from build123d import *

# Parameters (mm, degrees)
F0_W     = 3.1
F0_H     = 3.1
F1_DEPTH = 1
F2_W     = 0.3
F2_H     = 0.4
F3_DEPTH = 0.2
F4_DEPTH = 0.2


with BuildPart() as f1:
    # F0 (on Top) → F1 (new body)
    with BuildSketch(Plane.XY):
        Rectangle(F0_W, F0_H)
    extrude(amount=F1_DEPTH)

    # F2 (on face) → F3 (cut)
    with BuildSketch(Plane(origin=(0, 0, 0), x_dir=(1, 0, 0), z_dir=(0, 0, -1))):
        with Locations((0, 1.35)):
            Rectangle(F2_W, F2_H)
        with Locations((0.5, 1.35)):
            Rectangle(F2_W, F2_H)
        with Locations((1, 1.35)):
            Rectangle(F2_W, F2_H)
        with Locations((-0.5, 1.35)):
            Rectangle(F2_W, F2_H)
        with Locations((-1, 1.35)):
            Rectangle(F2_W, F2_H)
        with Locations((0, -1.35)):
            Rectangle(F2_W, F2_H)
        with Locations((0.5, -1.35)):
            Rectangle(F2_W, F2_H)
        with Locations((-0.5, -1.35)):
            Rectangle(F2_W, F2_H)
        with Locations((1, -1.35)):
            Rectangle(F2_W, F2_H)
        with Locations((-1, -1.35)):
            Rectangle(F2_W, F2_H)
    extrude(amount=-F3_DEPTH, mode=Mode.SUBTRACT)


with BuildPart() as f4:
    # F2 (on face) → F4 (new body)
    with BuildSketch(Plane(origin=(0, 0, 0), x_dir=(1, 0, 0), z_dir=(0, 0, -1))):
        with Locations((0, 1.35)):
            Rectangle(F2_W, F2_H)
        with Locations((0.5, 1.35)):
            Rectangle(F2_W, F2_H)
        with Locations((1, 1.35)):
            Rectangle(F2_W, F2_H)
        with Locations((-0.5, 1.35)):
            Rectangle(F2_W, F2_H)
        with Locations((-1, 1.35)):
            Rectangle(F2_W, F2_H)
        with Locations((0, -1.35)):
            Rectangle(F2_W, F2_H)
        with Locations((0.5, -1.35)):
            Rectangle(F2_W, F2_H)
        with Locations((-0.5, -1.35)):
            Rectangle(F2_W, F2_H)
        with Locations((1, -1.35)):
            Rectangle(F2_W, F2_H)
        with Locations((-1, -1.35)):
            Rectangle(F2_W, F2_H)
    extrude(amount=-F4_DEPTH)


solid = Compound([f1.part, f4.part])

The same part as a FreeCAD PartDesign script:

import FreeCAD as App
import Part
import Sketcher
from FreeCAD import Vector

doc = App.newDocument("Part")
body = doc.addObject("PartDesign::Body", "Body")

# Sketch on XY plane
sketch1 = doc.addObject("Sketcher::SketchObject", "Sketch")
body.addObject(sketch1)
sketch1.AttachmentSupport = (doc.XY_Plane, [""])
sketch1.MapMode = "FlatFace"
sketch1.addGeometry([
    Part.LineSegment(Vector(-1.55, 1.55, 0), Vector(-1.55, -1.55, 0)),
    Part.LineSegment(Vector(-1.55, -1.55, 0), Vector(1.55, -1.55, 0)),
    Part.LineSegment(Vector(1.55, -1.55, 0), Vector(1.55, 1.55, 0)),
    Part.LineSegment(Vector(1.55, 1.55, 0), Vector(-1.55, 1.55, 0)),
], False)
sketch1.addConstraint([
    Sketcher.Constraint("Coincident", 0, 2, 1, 1),
    Sketcher.Constraint("Coincident", 1, 2, 2, 1),
    Sketcher.Constraint("Coincident", 2, 2, 3, 1),
    Sketcher.Constraint("Coincident", 3, 2, 0, 1),
    Sketcher.Constraint("Vertical", 0),
    Sketcher.Constraint("Horizontal", 1),
    Sketcher.Constraint("Vertical", 2),
    Sketcher.Constraint("Horizontal", 3),
    Sketcher.Constraint("Symmetric", 0, 2, 2, 2, -1, 1),
    Sketcher.Constraint("Equal", 3, 0),
    Sketcher.Constraint("DistanceX", 1, 1, 1, 2, 3.1),
])
pad1 = doc.addObject("PartDesign::Pad", "Pad")
body.addObject(pad1)
pad1.Profile = sketch1
pad1.Length = 1

# Sketch on XY plane
sketch2 = doc.addObject("Sketcher::SketchObject", "Sketch001")
body.addObject(sketch2)
sketch2.AttachmentSupport = (doc.XY_Plane, [""])
sketch2.MapMode = "FlatFace"
sketch2.addGeometry([
    Part.LineSegment(Vector(-0.15, -1.55, 0), Vector(-0.15, -1.15, 0)),  # 0
    Part.LineSegment(Vector(-0.15, -1.15, 0), Vector(0.15, -1.15, 0)),  # 1
    Part.LineSegment(Vector(0.15, -1.15, 0), Vector(0.15, -1.55, 0)),  # 2
    Part.LineSegment(Vector(0.15, -1.55, 0), Vector(-0.15, -1.55, 0)),  # 3
    Part.LineSegment(Vector(0.35, -1.55, 0), Vector(0.35, -1.15, 0)),  # 4
    Part.LineSegment(Vector(0.35, -1.15, 0), Vector(0.65, -1.15, 0)),  # 5
    Part.LineSegment(Vector(0.65, -1.15, 0), Vector(0.65, -1.55, 0)),  # 6
    Part.LineSegment(Vector(0.65, -1.55, 0), Vector(0.35, -1.55, 0)),  # 7
    Part.LineSegment(Vector(0.85, -1.55, 0), Vector(0.85, -1.15, 0)),  # 8
    Part.LineSegment(Vector(0.85, -1.15, 0), Vector(1.15, -1.15, 0)),  # 9
    Part.LineSegment(Vector(1.15, -1.15, 0), Vector(1.15, -1.55, 0)),  # 10
    Part.LineSegment(Vector(1.15, -1.55, 0), Vector(0.85, -1.55, 0)),  # 11
    Part.LineSegment(Vector(-0.65, -1.55, 0), Vector(-0.65, -1.15, 0)),  # 12
    Part.LineSegment(Vector(-0.65, -1.15, 0), Vector(-0.35, -1.15, 0)),  # 13
    Part.LineSegment(Vector(-0.35, -1.15, 0), Vector(-0.35, -1.55, 0)),  # 14
    Part.LineSegment(Vector(-0.35, -1.55, 0), Vector(-0.65, -1.55, 0)),  # 15
    Part.LineSegment(Vector(-1.15, -1.55, 0), Vector(-1.15, -1.15, 0)),  # 16
    Part.LineSegment(Vector(-1.15, -1.15, 0), Vector(-0.85, -1.15, 0)),  # 17
    Part.LineSegment(Vector(-0.85, -1.15, 0), Vector(-0.85, -1.55, 0)),  # 18
    Part.LineSegment(Vector(-0.85, -1.55, 0), Vector(-1.15, -1.55, 0)),  # 19
    Part.LineSegment(Vector(-0.15, 1.15, 0), Vector(-0.15, 1.55, 0)),  # 20
    Part.LineSegment(Vector(-0.15, 1.55, 0), Vector(0.15, 1.55, 0)),  # 21
    Part.LineSegment(Vector(0.15, 1.55, 0), Vector(0.15, 1.15, 0)),  # 22
    Part.LineSegment(Vector(0.15, 1.15, 0), Vector(-0.15, 1.15, 0)),  # 23
    Part.LineSegment(Vector(0.35, 1.15, 0), Vector(0.35, 1.55, 0)),  # 24
    Part.LineSegment(Vector(0.35, 1.55, 0), Vector(0.65, 1.55, 0)),  # 25
    Part.LineSegment(Vector(0.65, 1.55, 0), Vector(0.65, 1.15, 0)),  # 26
    Part.LineSegment(Vector(0.65, 1.15, 0), Vector(0.35, 1.15, 0)),  # 27
    Part.LineSegment(Vector(-0.65, 1.15, 0), Vector(-0.65, 1.55, 0)),  # 28
    Part.LineSegment(Vector(-0.65, 1.55, 0), Vector(-0.35, 1.55, 0)),  # 29
    Part.LineSegment(Vector(-0.35, 1.55, 0), Vector(-0.35, 1.15, 0)),  # 30
    Part.LineSegment(Vector(-0.35, 1.15, 0), Vector(-0.65, 1.15, 0)),  # 31
    Part.LineSegment(Vector(0.85, 1.15, 0), Vector(0.85, 1.55, 0)),  # 32
    Part.LineSegment(Vector(0.85, 1.55, 0), Vector(1.15, 1.55, 0)),  # 33
    Part.LineSegment(Vector(1.15, 1.55, 0), Vector(1.15, 1.15, 0)),  # 34
    Part.LineSegment(Vector(1.15, 1.15, 0), Vector(0.85, 1.15, 0)),  # 35
    Part.LineSegment(Vector(-1.15, 1.15, 0), Vector(-1.15, 1.55, 0)),  # 36
    Part.LineSegment(Vector(-1.15, 1.55, 0), Vector(-0.85, 1.55, 0)),  # 37
    Part.LineSegment(Vector(-0.85, 1.55, 0), Vector(-0.85, 1.15, 0)),  # 38
    Part.LineSegment(Vector(-0.85, 1.15, 0), Vector(-1.15, 1.15, 0)),  # 39
], False)
sketch2.addConstraint([
    Sketcher.Constraint("Coincident", 0, 2, 1, 1),
    Sketcher.Constraint("Coincident", 1, 2, 2, 1),
    Sketcher.Constraint("Coincident", 2, 2, 3, 1),
    Sketcher.Constraint("Coincident", 3, 2, 0, 1),
    Sketcher.Constraint("Coincident", 4, 2, 5, 1),
    Sketcher.Constraint("Coincident", 5, 2, 6, 1),
    Sketcher.Constraint("Coincident", 6, 2, 7, 1),
    Sketcher.Constraint("Coincident", 7, 2, 4, 1),
    Sketcher.Constraint("Coincident", 8, 2, 9, 1),
    Sketcher.Constraint("Coincident", 9, 2, 10, 1),
    Sketcher.Constraint("Coincident", 10, 2, 11, 1),
    Sketcher.Constraint("Coincident", 11, 2, 8, 1),
    Sketcher.Constraint("Coincident", 12, 2, 13, 1),
    Sketcher.Constraint("Coincident", 13, 2, 14, 1),
    Sketcher.Constraint("Coincident", 14, 2, 15, 1),
    Sketcher.Constraint("Coincident", 15, 2, 12, 1),
    Sketcher.Constraint("Coincident", 16, 2, 17, 1),
    Sketcher.Constraint("Coincident", 17, 2, 18, 1),
    Sketcher.Constraint("Coincident", 18, 2, 19, 1),
    Sketcher.Constraint("Coincident", 19, 2, 16, 1),
    Sketcher.Constraint("Coincident", 20, 2, 21, 1),
    Sketcher.Constraint("Coincident", 21, 2, 22, 1),
    Sketcher.Constraint("Coincident", 22, 2, 23, 1),
    Sketcher.Constraint("Coincident", 23, 2, 20, 1),
    Sketcher.Constraint("Coincident", 24, 2, 25, 1),
    Sketcher.Constraint("Coincident", 25, 2, 26, 1),
    Sketcher.Constraint("Coincident", 26, 2, 27, 1),
    Sketcher.Constraint("Coincident", 27, 2, 24, 1),
    Sketcher.Constraint("Coincident", 28, 2, 29, 1),
    Sketcher.Constraint("Coincident", 29, 2, 30, 1),
    Sketcher.Constraint("Coincident", 30, 2, 31, 1),
    Sketcher.Constraint("Coincident", 31, 2, 28, 1),
    Sketcher.Constraint("Coincident", 32, 2, 33, 1),
    Sketcher.Constraint("Coincident", 33, 2, 34, 1),
    Sketcher.Constraint("Coincident", 34, 2, 35, 1),
    Sketcher.Constraint("Coincident", 35, 2, 32, 1),
    Sketcher.Constraint("Coincident", 36, 2, 37, 1),
    Sketcher.Constraint("Coincident", 37, 2, 38, 1),
    Sketcher.Constraint("Coincident", 38, 2, 39, 1),
    Sketcher.Constraint("Coincident", 39, 2, 36, 1),
    Sketcher.Constraint("Vertical", 0),
    Sketcher.Constraint("Horizontal", 1),
    Sketcher.Constraint("Vertical", 2),
    Sketcher.Constraint("Horizontal", 3),
    Sketcher.Constraint("Vertical", 4),
    Sketcher.Constraint("Horizontal", 5),
    Sketcher.Constraint("Vertical", 6),
    Sketcher.Constraint("Horizontal", 7),
    Sketcher.Constraint("Vertical", 8),
    Sketcher.Constraint("Horizontal", 9),
    Sketcher.Constraint("Vertical", 10),
    Sketcher.Constraint("Horizontal", 11),
    Sketcher.Constraint("Vertical", 12),
    Sketcher.Constraint("Horizontal", 13),
    Sketcher.Constraint("Vertical", 14),
    Sketcher.Constraint("Horizontal", 15),
    Sketcher.Constraint("Vertical", 16),
    Sketcher.Constraint("Horizontal", 17),
    Sketcher.Constraint("Vertical", 18),
    Sketcher.Constraint("Horizontal", 19),
    Sketcher.Constraint("Vertical", 20),
    Sketcher.Constraint("Horizontal", 21),
    Sketcher.Constraint("Vertical", 22),
    Sketcher.Constraint("Horizontal", 23),
    Sketcher.Constraint("Vertical", 24),
    Sketcher.Constraint("Horizontal", 25),
    Sketcher.Constraint("Vertical", 26),
    Sketcher.Constraint("Horizontal", 27),
    Sketcher.Constraint("Vertical", 28),
    Sketcher.Constraint("Horizontal", 29),
    Sketcher.Constraint("Vertical", 30),
    Sketcher.Constraint("Horizontal", 31),
    Sketcher.Constraint("Vertical", 32),
    Sketcher.Constraint("Horizontal", 33),
    Sketcher.Constraint("Vertical", 34),
    Sketcher.Constraint("Horizontal", 35),
    Sketcher.Constraint("Vertical", 36),
    Sketcher.Constraint("Horizontal", 37),
    Sketcher.Constraint("Vertical", 38),
    Sketcher.Constraint("Horizontal", 39),
    Sketcher.Constraint("Symmetric", 2, 2, 20, 2, -1, 1),
    Sketcher.Constraint("Symmetric", 0, 2, 22, 2, -1, 1),
    Sketcher.Constraint("Symmetric", 14, 2, 24, 2, -1, 1),
    Sketcher.Constraint("Symmetric", 12, 2, 26, 2, -1, 1),
    Sketcher.Constraint("Symmetric", 6, 2, 28, 2, -1, 1),
    Sketcher.Constraint("Symmetric", 4, 2, 30, 2, -1, 1),
    Sketcher.Constraint("Symmetric", 18, 2, 32, 2, -1, 1),
    Sketcher.Constraint("Symmetric", 16, 2, 34, 2, -1, 1),
    Sketcher.Constraint("Symmetric", 10, 2, 36, 2, -1, 1),
    Sketcher.Constraint("Symmetric", 8, 2, 38, 2, -1, 1),
    Sketcher.Constraint("Symmetric", 5, 2, 12, 2, -2),
    Sketcher.Constraint("Symmetric", 7, 2, 14, 2, -2),
    Sketcher.Constraint("Symmetric", 9, 2, 16, 2, -2),
    Sketcher.Constraint("Symmetric", 11, 2, 18, 2, -2),
    Sketcher.Constraint("Horizontal", 1, 2, 4, 2),
    Sketcher.Constraint("Horizontal", 3, 2, 6, 2),
    Sketcher.Constraint("Horizontal", 5, 2, 8, 2),
    Sketcher.Constraint("Horizontal", 7, 2, 10, 2),
    Sketcher.Constraint("Vertical", 3, 2, 20, 2),
    Sketcher.Constraint("Equal", 3, 5),
    Sketcher.Constraint("Equal", 7, 9),
    Sketcher.Constraint("DistanceX", 1, 1, 1, 2, 0.3),
    Sketcher.Constraint("DistanceY", 0, 1, 0, 2, 0.4),
    Sketcher.Constraint("DistanceX", 12, 2, 4, 2, 1.0),
    Sketcher.Constraint("DistanceX", 16, 2, 0, 2, 1.0),
    Sketcher.Constraint("DistanceY", 0, 2, 20, 2, 2.7),
])
pocket1 = doc.addObject("PartDesign::Pocket", "Pocket")
body.addObject(pocket1)
pocket1.Profile = sketch2
pocket1.Length = 0.2
pocket1.Reversed = True
body2 = doc.addObject("PartDesign::Body", "Body001")
body2.AllowCompound = True

# Sketch on XY plane
sketch3 = doc.addObject("Sketcher::SketchObject", "Sketch002")
body2.addObject(sketch3)
sketch3.AttachmentSupport = (doc.getObject("XY_Plane001"), [""])
sketch3.MapMode = "FlatFace"
sketch3.addGeometry([
    Part.LineSegment(Vector(-0.15, -1.55, 0), Vector(-0.15, -1.15, 0)),  # 0
    Part.LineSegment(Vector(-0.15, -1.15, 0), Vector(0.15, -1.15, 0)),  # 1
    Part.LineSegment(Vector(0.15, -1.15, 0), Vector(0.15, -1.55, 0)),  # 2
    Part.LineSegment(Vector(0.15, -1.55, 0), Vector(-0.15, -1.55, 0)),  # 3
    Part.LineSegment(Vector(0.35, -1.55, 0), Vector(0.35, -1.15, 0)),  # 4
    Part.LineSegment(Vector(0.35, -1.15, 0), Vector(0.65, -1.15, 0)),  # 5
    Part.LineSegment(Vector(0.65, -1.15, 0), Vector(0.65, -1.55, 0)),  # 6
    Part.LineSegment(Vector(0.65, -1.55, 0), Vector(0.35, -1.55, 0)),  # 7
    Part.LineSegment(Vector(0.85, -1.55, 0), Vector(0.85, -1.15, 0)),  # 8
    Part.LineSegment(Vector(0.85, -1.15, 0), Vector(1.15, -1.15, 0)),  # 9
    Part.LineSegment(Vector(1.15, -1.15, 0), Vector(1.15, -1.55, 0)),  # 10
    Part.LineSegment(Vector(1.15, -1.55, 0), Vector(0.85, -1.55, 0)),  # 11
    Part.LineSegment(Vector(-0.65, -1.55, 0), Vector(-0.65, -1.15, 0)),  # 12
    Part.LineSegment(Vector(-0.65, -1.15, 0), Vector(-0.35, -1.15, 0)),  # 13
    Part.LineSegment(Vector(-0.35, -1.15, 0), Vector(-0.35, -1.55, 0)),  # 14
    Part.LineSegment(Vector(-0.35, -1.55, 0), Vector(-0.65, -1.55, 0)),  # 15
    Part.LineSegment(Vector(-1.15, -1.55, 0), Vector(-1.15, -1.15, 0)),  # 16
    Part.LineSegment(Vector(-1.15, -1.15, 0), Vector(-0.85, -1.15, 0)),  # 17
    Part.LineSegment(Vector(-0.85, -1.15, 0), Vector(-0.85, -1.55, 0)),  # 18
    Part.LineSegment(Vector(-0.85, -1.55, 0), Vector(-1.15, -1.55, 0)),  # 19
    Part.LineSegment(Vector(-0.15, 1.15, 0), Vector(-0.15, 1.55, 0)),  # 20
    Part.LineSegment(Vector(-0.15, 1.55, 0), Vector(0.15, 1.55, 0)),  # 21
    Part.LineSegment(Vector(0.15, 1.55, 0), Vector(0.15, 1.15, 0)),  # 22
    Part.LineSegment(Vector(0.15, 1.15, 0), Vector(-0.15, 1.15, 0)),  # 23
    Part.LineSegment(Vector(0.35, 1.15, 0), Vector(0.35, 1.55, 0)),  # 24
    Part.LineSegment(Vector(0.35, 1.55, 0), Vector(0.65, 1.55, 0)),  # 25
    Part.LineSegment(Vector(0.65, 1.55, 0), Vector(0.65, 1.15, 0)),  # 26
    Part.LineSegment(Vector(0.65, 1.15, 0), Vector(0.35, 1.15, 0)),  # 27
    Part.LineSegment(Vector(-0.65, 1.15, 0), Vector(-0.65, 1.55, 0)),  # 28
    Part.LineSegment(Vector(-0.65, 1.55, 0), Vector(-0.35, 1.55, 0)),  # 29
    Part.LineSegment(Vector(-0.35, 1.55, 0), Vector(-0.35, 1.15, 0)),  # 30
    Part.LineSegment(Vector(-0.35, 1.15, 0), Vector(-0.65, 1.15, 0)),  # 31
    Part.LineSegment(Vector(0.85, 1.15, 0), Vector(0.85, 1.55, 0)),  # 32
    Part.LineSegment(Vector(0.85, 1.55, 0), Vector(1.15, 1.55, 0)),  # 33
    Part.LineSegment(Vector(1.15, 1.55, 0), Vector(1.15, 1.15, 0)),  # 34
    Part.LineSegment(Vector(1.15, 1.15, 0), Vector(0.85, 1.15, 0)),  # 35
    Part.LineSegment(Vector(-1.15, 1.15, 0), Vector(-1.15, 1.55, 0)),  # 36
    Part.LineSegment(Vector(-1.15, 1.55, 0), Vector(-0.85, 1.55, 0)),  # 37
    Part.LineSegment(Vector(-0.85, 1.55, 0), Vector(-0.85, 1.15, 0)),  # 38
    Part.LineSegment(Vector(-0.85, 1.15, 0), Vector(-1.15, 1.15, 0)),  # 39
], False)
sketch3.addConstraint([
    Sketcher.Constraint("Coincident", 0, 2, 1, 1),
    Sketcher.Constraint("Coincident", 1, 2, 2, 1),
    Sketcher.Constraint("Coincident", 2, 2, 3, 1),
    Sketcher.Constraint("Coincident", 3, 2, 0, 1),
    Sketcher.Constraint("Coincident", 4, 2, 5, 1),
    Sketcher.Constraint("Coincident", 5, 2, 6, 1),
    Sketcher.Constraint("Coincident", 6, 2, 7, 1),
    Sketcher.Constraint("Coincident", 7, 2, 4, 1),
    Sketcher.Constraint("Coincident", 8, 2, 9, 1),
    Sketcher.Constraint("Coincident", 9, 2, 10, 1),
    Sketcher.Constraint("Coincident", 10, 2, 11, 1),
    Sketcher.Constraint("Coincident", 11, 2, 8, 1),
    Sketcher.Constraint("Coincident", 12, 2, 13, 1),
    Sketcher.Constraint("Coincident", 13, 2, 14, 1),
    Sketcher.Constraint("Coincident", 14, 2, 15, 1),
    Sketcher.Constraint("Coincident", 15, 2, 12, 1),
    Sketcher.Constraint("Coincident", 16, 2, 17, 1),
    Sketcher.Constraint("Coincident", 17, 2, 18, 1),
    Sketcher.Constraint("Coincident", 18, 2, 19, 1),
    Sketcher.Constraint("Coincident", 19, 2, 16, 1),
    Sketcher.Constraint("Coincident", 20, 2, 21, 1),
    Sketcher.Constraint("Coincident", 21, 2, 22, 1),
    Sketcher.Constraint("Coincident", 22, 2, 23, 1),
    Sketcher.Constraint("Coincident", 23, 2, 20, 1),
    Sketcher.Constraint("Coincident", 24, 2, 25, 1),
    Sketcher.Constraint("Coincident", 25, 2, 26, 1),
    Sketcher.Constraint("Coincident", 26, 2, 27, 1),
    Sketcher.Constraint("Coincident", 27, 2, 24, 1),
    Sketcher.Constraint("Coincident", 28, 2, 29, 1),
    Sketcher.Constraint("Coincident", 29, 2, 30, 1),
    Sketcher.Constraint("Coincident", 30, 2, 31, 1),
    Sketcher.Constraint("Coincident", 31, 2, 28, 1),
    Sketcher.Constraint("Coincident", 32, 2, 33, 1),
    Sketcher.Constraint("Coincident", 33, 2, 34, 1),
    Sketcher.Constraint("Coincident", 34, 2, 35, 1),
    Sketcher.Constraint("Coincident", 35, 2, 32, 1),
    Sketcher.Constraint("Coincident", 36, 2, 37, 1),
    Sketcher.Constraint("Coincident", 37, 2, 38, 1),
    Sketcher.Constraint("Coincident", 38, 2, 39, 1),
    Sketcher.Constraint("Coincident", 39, 2, 36, 1),
    Sketcher.Constraint("Vertical", 0),
    Sketcher.Constraint("Horizontal", 1),
    Sketcher.Constraint("Vertical", 2),
    Sketcher.Constraint("Horizontal", 3),
    Sketcher.Constraint("Vertical", 4),
    Sketcher.Constraint("Horizontal", 5),
    Sketcher.Constraint("Vertical", 6),
    Sketcher.Constraint("Horizontal", 7),
    Sketcher.Constraint("Vertical", 8),
    Sketcher.Constraint("Horizontal", 9),
    Sketcher.Constraint("Vertical", 10),
    Sketcher.Constraint("Horizontal", 11),
    Sketcher.Constraint("Vertical", 12),
    Sketcher.Constraint("Horizontal", 13),
    Sketcher.Constraint("Vertical", 14),
    Sketcher.Constraint("Horizontal", 15),
    Sketcher.Constraint("Vertical", 16),
    Sketcher.Constraint("Horizontal", 17),
    Sketcher.Constraint("Vertical", 18),
    Sketcher.Constraint("Horizontal", 19),
    Sketcher.Constraint("Vertical", 20),
    Sketcher.Constraint("Horizontal", 21),
    Sketcher.Constraint("Vertical", 22),
    Sketcher.Constraint("Horizontal", 23),
    Sketcher.Constraint("Vertical", 24),
    Sketcher.Constraint("Horizontal", 25),
    Sketcher.Constraint("Vertical", 26),
    Sketcher.Constraint("Horizontal", 27),
    Sketcher.Constraint("Vertical", 28),
    Sketcher.Constraint("Horizontal", 29),
    Sketcher.Constraint("Vertical", 30),
    Sketcher.Constraint("Horizontal", 31),
    Sketcher.Constraint("Vertical", 32),
    Sketcher.Constraint("Horizontal", 33),
    Sketcher.Constraint("Vertical", 34),
    Sketcher.Constraint("Horizontal", 35),
    Sketcher.Constraint("Vertical", 36),
    Sketcher.Constraint("Horizontal", 37),
    Sketcher.Constraint("Vertical", 38),
    Sketcher.Constraint("Horizontal", 39),
    Sketcher.Constraint("Symmetric", 2, 2, 20, 2, -1, 1),
    Sketcher.Constraint("Symmetric", 0, 2, 22, 2, -1, 1),
    Sketcher.Constraint("Symmetric", 14, 2, 24, 2, -1, 1),
    Sketcher.Constraint("Symmetric", 12, 2, 26, 2, -1, 1),
    Sketcher.Constraint("Symmetric", 6, 2, 28, 2, -1, 1),
    Sketcher.Constraint("Symmetric", 4, 2, 30, 2, -1, 1),
    Sketcher.Constraint("Symmetric", 18, 2, 32, 2, -1, 1),
    Sketcher.Constraint("Symmetric", 16, 2, 34, 2, -1, 1),
    Sketcher.Constraint("Symmetric", 10, 2, 36, 2, -1, 1),
    Sketcher.Constraint("Symmetric", 8, 2, 38, 2, -1, 1),
    Sketcher.Constraint("Symmetric", 5, 2, 12, 2, -2),
    Sketcher.Constraint("Symmetric", 7, 2, 14, 2, -2),
    Sketcher.Constraint("Symmetric", 9, 2, 16, 2, -2),
    Sketcher.Constraint("Symmetric", 11, 2, 18, 2, -2),
    Sketcher.Constraint("Horizontal", 1, 2, 4, 2),
    Sketcher.Constraint("Horizontal", 3, 2, 6, 2),
    Sketcher.Constraint("Horizontal", 5, 2, 8, 2),
    Sketcher.Constraint("Horizontal", 7, 2, 10, 2),
    Sketcher.Constraint("Vertical", 3, 2, 20, 2),
    Sketcher.Constraint("Equal", 3, 5),
    Sketcher.Constraint("Equal", 7, 9),
    Sketcher.Constraint("DistanceX", 1, 1, 1, 2, 0.3),
    Sketcher.Constraint("DistanceY", 0, 1, 0, 2, 0.4),
    Sketcher.Constraint("DistanceX", 12, 2, 4, 2, 1.0),
    Sketcher.Constraint("DistanceX", 16, 2, 0, 2, 1.0),
    Sketcher.Constraint("DistanceY", 0, 2, 20, 2, 2.7),
])
pad2 = doc.addObject("PartDesign::Pad", "Pad001")
body2.addObject(pad2)
pad2.Profile = sketch3
pad2.Length = 0.2

doc.recompute()
